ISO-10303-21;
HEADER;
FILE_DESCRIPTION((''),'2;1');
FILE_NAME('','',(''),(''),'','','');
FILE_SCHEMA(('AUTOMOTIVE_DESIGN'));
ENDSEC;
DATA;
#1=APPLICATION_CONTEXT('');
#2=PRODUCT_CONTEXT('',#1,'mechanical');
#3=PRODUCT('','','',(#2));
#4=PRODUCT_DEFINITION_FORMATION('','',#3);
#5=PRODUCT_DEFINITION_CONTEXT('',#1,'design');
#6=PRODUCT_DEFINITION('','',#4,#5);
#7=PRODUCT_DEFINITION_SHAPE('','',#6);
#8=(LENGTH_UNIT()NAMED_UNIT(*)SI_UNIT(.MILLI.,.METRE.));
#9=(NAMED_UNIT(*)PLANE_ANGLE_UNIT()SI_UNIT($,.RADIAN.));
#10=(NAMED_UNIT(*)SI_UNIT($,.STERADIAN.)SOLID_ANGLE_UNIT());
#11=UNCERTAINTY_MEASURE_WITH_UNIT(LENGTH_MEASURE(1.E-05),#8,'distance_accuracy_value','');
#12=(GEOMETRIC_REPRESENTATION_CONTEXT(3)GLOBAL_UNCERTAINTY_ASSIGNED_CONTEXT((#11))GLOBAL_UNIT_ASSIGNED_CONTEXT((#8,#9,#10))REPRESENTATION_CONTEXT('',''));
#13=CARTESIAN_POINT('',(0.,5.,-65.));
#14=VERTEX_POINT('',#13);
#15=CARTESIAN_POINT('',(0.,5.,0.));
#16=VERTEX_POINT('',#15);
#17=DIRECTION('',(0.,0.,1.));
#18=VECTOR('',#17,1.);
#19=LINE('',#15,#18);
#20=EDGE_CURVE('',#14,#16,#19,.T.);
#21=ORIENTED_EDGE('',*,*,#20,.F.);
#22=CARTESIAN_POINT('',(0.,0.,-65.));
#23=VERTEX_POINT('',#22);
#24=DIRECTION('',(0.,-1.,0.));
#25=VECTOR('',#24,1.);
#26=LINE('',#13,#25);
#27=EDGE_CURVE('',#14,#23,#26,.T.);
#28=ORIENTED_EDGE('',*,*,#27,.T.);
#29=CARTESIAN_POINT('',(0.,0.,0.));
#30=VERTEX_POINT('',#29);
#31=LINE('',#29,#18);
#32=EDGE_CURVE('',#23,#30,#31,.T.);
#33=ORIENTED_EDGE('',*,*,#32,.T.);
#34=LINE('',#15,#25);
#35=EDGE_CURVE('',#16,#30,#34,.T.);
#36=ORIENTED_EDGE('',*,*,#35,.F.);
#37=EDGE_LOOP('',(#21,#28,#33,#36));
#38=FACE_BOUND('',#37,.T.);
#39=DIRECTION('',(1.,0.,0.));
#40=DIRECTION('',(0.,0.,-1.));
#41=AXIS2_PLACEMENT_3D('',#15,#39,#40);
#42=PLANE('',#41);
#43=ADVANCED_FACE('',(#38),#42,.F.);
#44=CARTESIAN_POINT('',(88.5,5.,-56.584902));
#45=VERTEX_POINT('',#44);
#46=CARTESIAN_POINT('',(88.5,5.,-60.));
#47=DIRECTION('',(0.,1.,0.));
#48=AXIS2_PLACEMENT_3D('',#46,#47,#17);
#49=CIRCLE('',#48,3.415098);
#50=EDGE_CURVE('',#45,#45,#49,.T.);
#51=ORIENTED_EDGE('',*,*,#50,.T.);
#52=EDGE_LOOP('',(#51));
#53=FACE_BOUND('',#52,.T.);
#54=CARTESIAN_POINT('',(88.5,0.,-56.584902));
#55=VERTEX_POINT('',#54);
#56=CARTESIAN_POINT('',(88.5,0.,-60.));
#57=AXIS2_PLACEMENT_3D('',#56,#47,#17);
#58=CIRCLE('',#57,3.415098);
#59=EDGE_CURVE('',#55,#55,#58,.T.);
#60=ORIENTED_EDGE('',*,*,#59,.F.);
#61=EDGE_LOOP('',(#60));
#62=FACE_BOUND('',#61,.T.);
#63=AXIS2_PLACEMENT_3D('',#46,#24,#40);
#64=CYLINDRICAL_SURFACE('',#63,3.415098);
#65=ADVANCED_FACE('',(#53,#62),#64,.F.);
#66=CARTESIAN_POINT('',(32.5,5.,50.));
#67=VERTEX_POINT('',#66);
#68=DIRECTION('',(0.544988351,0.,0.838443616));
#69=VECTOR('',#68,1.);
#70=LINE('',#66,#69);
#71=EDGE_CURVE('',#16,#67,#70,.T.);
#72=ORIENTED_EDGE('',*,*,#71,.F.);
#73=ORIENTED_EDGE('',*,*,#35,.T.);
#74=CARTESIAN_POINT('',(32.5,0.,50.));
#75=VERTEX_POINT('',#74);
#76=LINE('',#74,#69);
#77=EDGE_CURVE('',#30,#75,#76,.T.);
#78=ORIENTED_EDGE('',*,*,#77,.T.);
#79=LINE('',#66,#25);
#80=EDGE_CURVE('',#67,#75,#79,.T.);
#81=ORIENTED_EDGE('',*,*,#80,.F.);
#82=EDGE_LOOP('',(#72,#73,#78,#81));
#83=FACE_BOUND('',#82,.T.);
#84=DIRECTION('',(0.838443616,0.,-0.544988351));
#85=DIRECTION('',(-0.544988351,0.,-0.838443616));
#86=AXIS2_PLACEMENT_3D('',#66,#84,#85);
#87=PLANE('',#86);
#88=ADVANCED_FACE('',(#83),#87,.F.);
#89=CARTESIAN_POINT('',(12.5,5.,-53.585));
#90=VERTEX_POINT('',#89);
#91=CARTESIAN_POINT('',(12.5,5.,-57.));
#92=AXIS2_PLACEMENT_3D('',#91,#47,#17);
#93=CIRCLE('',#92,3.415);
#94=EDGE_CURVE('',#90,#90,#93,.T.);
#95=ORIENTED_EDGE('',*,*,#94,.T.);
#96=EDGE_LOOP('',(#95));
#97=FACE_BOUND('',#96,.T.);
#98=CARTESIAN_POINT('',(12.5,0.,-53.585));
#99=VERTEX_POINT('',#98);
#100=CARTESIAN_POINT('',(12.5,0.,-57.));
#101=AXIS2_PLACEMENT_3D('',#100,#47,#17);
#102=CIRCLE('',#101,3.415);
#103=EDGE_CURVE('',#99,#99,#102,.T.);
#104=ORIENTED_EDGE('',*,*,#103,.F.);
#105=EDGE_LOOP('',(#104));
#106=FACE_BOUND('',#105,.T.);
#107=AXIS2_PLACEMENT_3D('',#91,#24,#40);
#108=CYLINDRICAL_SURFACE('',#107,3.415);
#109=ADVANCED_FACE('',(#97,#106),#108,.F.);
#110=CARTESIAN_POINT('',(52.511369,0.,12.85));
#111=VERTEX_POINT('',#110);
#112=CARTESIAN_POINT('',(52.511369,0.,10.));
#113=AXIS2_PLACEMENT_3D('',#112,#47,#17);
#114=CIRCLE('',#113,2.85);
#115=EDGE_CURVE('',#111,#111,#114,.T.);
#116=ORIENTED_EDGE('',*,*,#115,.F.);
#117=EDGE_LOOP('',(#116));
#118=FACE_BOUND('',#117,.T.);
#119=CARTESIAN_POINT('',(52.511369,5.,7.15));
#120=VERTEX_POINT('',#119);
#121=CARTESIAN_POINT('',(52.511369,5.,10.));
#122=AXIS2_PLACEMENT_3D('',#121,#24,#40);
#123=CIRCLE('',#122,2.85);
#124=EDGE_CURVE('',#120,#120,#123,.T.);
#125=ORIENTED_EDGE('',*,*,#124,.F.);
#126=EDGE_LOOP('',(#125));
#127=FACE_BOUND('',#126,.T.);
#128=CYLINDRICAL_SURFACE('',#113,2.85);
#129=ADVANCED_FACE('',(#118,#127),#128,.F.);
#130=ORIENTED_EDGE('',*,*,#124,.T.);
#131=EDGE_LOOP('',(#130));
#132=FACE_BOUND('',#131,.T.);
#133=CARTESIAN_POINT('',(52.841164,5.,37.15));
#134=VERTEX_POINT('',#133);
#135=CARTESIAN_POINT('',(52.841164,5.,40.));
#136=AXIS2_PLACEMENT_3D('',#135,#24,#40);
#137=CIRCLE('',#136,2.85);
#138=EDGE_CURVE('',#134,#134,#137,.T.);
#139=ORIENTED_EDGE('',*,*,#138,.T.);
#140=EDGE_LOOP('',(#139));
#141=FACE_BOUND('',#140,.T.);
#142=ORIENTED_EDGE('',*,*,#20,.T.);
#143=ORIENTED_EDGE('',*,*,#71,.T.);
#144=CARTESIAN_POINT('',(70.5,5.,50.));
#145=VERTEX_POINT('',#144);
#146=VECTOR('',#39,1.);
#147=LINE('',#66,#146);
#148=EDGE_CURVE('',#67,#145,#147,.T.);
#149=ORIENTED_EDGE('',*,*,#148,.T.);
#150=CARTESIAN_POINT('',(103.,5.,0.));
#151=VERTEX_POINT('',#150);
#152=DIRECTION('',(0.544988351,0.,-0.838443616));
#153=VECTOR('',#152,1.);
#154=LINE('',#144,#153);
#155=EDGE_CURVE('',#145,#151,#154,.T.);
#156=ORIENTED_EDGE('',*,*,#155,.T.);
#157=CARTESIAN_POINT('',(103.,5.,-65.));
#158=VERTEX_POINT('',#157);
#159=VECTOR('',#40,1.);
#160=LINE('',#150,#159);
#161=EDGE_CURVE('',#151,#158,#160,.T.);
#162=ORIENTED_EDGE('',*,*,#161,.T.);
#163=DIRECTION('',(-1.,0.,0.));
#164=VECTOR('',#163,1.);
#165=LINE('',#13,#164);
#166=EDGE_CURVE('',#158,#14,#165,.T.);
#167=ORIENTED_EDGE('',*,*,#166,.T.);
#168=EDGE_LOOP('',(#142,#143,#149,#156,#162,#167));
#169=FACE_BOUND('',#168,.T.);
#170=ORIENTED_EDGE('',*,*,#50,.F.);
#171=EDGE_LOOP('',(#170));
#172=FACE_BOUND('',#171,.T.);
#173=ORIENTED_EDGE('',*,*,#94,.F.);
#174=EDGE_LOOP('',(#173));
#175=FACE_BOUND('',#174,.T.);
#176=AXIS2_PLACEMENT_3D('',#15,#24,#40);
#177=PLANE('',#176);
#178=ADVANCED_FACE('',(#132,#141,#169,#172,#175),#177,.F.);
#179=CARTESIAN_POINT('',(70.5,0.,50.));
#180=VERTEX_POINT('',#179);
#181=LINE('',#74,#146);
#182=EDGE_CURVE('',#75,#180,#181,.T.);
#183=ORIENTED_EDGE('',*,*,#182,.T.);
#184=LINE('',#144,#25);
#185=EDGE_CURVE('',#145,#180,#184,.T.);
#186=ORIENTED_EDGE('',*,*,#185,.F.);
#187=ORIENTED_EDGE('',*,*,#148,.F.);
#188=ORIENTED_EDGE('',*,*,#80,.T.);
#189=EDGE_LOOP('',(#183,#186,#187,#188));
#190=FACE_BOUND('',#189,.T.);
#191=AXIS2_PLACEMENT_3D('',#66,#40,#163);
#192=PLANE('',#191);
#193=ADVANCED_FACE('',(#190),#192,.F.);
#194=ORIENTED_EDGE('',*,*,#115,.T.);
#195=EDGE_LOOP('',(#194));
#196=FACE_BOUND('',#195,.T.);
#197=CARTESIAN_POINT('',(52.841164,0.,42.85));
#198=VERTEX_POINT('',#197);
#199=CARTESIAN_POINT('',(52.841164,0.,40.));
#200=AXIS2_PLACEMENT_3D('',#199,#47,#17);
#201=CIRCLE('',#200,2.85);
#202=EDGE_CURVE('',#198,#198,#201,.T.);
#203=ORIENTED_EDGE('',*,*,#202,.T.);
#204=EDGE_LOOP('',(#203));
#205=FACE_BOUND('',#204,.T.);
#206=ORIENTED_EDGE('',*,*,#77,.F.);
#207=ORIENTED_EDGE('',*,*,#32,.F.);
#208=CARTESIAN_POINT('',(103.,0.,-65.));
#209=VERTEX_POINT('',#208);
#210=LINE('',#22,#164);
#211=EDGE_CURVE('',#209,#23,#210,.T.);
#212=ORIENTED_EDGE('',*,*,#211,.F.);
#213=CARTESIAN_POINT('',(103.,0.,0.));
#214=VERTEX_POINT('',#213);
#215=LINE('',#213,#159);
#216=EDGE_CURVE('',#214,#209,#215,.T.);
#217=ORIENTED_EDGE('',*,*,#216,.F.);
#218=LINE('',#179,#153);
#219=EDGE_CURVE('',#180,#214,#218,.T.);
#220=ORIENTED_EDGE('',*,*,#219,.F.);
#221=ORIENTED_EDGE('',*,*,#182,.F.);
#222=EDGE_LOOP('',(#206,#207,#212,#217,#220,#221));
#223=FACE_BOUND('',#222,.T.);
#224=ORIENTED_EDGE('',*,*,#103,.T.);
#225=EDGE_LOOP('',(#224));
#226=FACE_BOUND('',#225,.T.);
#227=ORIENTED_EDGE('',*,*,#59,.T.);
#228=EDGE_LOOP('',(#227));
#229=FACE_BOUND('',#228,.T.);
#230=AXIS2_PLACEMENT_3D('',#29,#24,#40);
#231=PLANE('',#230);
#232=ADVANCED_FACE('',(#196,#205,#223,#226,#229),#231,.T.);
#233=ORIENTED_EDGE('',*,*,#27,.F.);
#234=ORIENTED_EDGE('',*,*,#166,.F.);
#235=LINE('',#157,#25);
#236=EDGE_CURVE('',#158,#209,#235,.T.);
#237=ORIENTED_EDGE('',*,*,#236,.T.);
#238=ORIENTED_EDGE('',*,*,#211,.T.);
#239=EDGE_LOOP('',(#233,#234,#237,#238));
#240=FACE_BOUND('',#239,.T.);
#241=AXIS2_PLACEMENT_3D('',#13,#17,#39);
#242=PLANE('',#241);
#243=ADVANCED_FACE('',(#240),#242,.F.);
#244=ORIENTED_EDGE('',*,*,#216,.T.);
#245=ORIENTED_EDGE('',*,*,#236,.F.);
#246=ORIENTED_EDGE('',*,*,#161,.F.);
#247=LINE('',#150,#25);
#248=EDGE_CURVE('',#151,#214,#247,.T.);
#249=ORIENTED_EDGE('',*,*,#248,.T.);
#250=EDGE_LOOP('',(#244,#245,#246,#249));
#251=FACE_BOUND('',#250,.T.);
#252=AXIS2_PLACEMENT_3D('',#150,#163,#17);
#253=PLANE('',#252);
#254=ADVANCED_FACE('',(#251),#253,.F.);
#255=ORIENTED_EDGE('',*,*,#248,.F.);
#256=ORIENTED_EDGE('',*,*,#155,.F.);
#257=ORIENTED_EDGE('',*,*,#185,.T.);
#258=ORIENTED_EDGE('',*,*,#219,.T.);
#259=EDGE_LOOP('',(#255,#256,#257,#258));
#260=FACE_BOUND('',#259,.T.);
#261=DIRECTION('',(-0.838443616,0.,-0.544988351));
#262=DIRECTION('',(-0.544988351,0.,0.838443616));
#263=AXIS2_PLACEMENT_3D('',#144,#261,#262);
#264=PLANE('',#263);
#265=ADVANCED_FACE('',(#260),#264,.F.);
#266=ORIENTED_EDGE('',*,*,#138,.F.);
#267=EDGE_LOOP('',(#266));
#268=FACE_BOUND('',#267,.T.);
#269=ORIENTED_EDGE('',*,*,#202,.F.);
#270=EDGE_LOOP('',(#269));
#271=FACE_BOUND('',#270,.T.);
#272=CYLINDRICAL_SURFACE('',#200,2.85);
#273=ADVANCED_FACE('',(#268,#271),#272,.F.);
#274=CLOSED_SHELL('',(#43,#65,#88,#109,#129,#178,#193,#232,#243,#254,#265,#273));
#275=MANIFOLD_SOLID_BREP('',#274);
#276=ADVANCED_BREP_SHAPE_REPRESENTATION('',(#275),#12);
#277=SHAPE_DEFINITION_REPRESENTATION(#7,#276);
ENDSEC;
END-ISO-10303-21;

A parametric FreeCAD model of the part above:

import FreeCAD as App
import Part
import Sketcher
from FreeCAD import Vector
Q = App.Units.Quantity

doc = App.newDocument("Part")
body = doc.addObject("PartDesign::Body", "Body")

# Sketch on XZ plane
sketch1 = body.newObject("Sketcher::SketchObject", "Sketch")
sketch1.AttachmentSupport = (doc.getObject("XZ_Plane"), [""])
sketch1.MapMode = "FlatFace"
sketch1.addGeometry(Part.LineSegment(Vector(0, -65, 0), Vector(0, 0, 0)), False)
sketch1.addGeometry(Part.LineSegment(Vector(0, 0, 0), Vector(32.5, 50, 0)), False)
sketch1.addGeometry(Part.LineSegment(Vector(32.5, 50, 0), Vector(70.5, 50, 0)), False)
sketch1.addGeometry(Part.LineSegment(Vector(70.5, 50, 0), Vector(103, 0, 0)), False)
sketch1.addGeometry(Part.LineSegment(Vector(103, 0, 0), Vector(103, -65, 0)), False)
sketch1.addGeometry(Part.LineSegment(Vector(103, -65, 0), Vector(0, -65, 0)), False)
sketch1.addGeometry(Part.Circle(Vector(12.5, -57, 0), Vector(0, 0, 1), 3.4), False)
sketch1.addGeometry(Part.Circle(Vector(88.5, -60, 0), Vector(0, 0, 1), 3.4), False)
sketch1.addConstraint(Sketcher.Constraint("Coincident", 0, 2, 1, 1))
sketch1.addConstraint(Sketcher.Constraint("Coincident", 1, 2, 2, 1))
sketch1.addConstraint(Sketcher.Constraint("Coincident", 2, 2, 3, 1))
sketch1.addConstraint(Sketcher.Constraint("Coincident", 3, 2, 4, 1))
sketch1.addConstraint(Sketcher.Constraint("Coincident", 4, 2, 5, 1))
sketch1.addConstraint(Sketcher.Constraint("Coincident", 5, 2, 0, 1))
sketch1.addConstraint(Sketcher.Constraint("Vertical", 0))
sketch1.addConstraint(Sketcher.Constraint("Horizontal", 2))
sketch1.addConstraint(Sketcher.Constraint("Vertical", 4))
sketch1.addConstraint(Sketcher.Constraint("Horizontal", 5))
sketch1.addConstraint(Sketcher.Constraint("Coincident", 0, 2, -1, 1))
sketch1.addConstraint(Sketcher.Constraint("PointOnObject", 3, 2, -1))
sketch1.addConstraint(Sketcher.Constraint("Equal", 1, 3))
sketch1.addConstraint(Sketcher.Constraint("Diameter", 6, Q("6.83 mm")))
sketch1.addConstraint(Sketcher.Constraint("DistanceX", 2, 1, 2, 2, Q("38 mm")))
sketch1.addConstraint(Sketcher.Constraint("DistanceX", 5, 2, 5, 1, Q("103 mm")))
sketch1.addConstraint(Sketcher.Constraint("DistanceY", 0, 1, 0, 2, Q("65 mm")))
sketch1.addConstraint(Sketcher.Constraint("DistanceY", 6, 3, -1, 1, Q("57 mm")))
sketch1.addConstraint(Sketcher.Constraint("DistanceY", 7, 3, -1, 1, Q("60 mm")))
sketch1.addConstraint(Sketcher.Constraint("DistanceY", -1, 1, 1, 2, Q("50 mm")))
sketch1.addConstraint(Sketcher.Constraint("DistanceX", 6, 3, 7, 3, Q("76 mm")))
sketch1.addConstraint(Sketcher.Constraint("DistanceX", 6, 3, 1, 2, Q("20 mm")))
sketch1.addConstraint(Sketcher.Constraint("Diameter", 7, Q("6.830196 mm")))
pad1 = body.newObject("PartDesign::Pad", "Pad")
pad1.Profile = sketch1
pad1.Length = 5
pad1.Reversed = True

# Sketch on XZ plane
sketch2 = body.newObject("Sketcher::SketchObject", "Sketch001")
sketch2.AttachmentSupport = (doc.getObject("XZ_Plane"), [""])
sketch2.MapMode = "FlatFace"
sketch2.AttachmentOffset = App.Placement(Vector(0, 0, -5), App.Rotation())
sketch2.addGeometry(Part.Circle(Vector(52.8, 40, 0), Vector(0, 0, 1), 2.9), False)
sketch2.addGeometry(Part.Circle(Vector(52.5, 10, 0), Vector(0, 0, 1), 2.9), False)
sketch2.addConstraint(Sketcher.Constraint("Equal", 0, 1))
sketch2.addConstraint(Sketcher.Constraint("Diameter", 0, Q("5.7 mm")))
sketch2.addConstraint(Sketcher.Constraint("DistanceY", -1, 1, 0, 3, Q("40 mm")))
sketch2.addConstraint(Sketcher.Constraint("DistanceY", -1, 1, 1, 3, Q("10 mm")))
sketch2.addConstraint(Sketcher.Constraint("DistanceX", -1, 1, 1, 3, Q("52.511369 mm")))
sketch2.addConstraint(Sketcher.Constraint("DistanceX", -1, 1, 0, 3, Q("52.841164 mm")))
pocket1 = body.newObject("PartDesign::Pocket", "Pocket")
pocket1.Profile = sketch2
pocket1.Type = "ThroughAll"
pocket1.Midplane = True

doc.recompute()
